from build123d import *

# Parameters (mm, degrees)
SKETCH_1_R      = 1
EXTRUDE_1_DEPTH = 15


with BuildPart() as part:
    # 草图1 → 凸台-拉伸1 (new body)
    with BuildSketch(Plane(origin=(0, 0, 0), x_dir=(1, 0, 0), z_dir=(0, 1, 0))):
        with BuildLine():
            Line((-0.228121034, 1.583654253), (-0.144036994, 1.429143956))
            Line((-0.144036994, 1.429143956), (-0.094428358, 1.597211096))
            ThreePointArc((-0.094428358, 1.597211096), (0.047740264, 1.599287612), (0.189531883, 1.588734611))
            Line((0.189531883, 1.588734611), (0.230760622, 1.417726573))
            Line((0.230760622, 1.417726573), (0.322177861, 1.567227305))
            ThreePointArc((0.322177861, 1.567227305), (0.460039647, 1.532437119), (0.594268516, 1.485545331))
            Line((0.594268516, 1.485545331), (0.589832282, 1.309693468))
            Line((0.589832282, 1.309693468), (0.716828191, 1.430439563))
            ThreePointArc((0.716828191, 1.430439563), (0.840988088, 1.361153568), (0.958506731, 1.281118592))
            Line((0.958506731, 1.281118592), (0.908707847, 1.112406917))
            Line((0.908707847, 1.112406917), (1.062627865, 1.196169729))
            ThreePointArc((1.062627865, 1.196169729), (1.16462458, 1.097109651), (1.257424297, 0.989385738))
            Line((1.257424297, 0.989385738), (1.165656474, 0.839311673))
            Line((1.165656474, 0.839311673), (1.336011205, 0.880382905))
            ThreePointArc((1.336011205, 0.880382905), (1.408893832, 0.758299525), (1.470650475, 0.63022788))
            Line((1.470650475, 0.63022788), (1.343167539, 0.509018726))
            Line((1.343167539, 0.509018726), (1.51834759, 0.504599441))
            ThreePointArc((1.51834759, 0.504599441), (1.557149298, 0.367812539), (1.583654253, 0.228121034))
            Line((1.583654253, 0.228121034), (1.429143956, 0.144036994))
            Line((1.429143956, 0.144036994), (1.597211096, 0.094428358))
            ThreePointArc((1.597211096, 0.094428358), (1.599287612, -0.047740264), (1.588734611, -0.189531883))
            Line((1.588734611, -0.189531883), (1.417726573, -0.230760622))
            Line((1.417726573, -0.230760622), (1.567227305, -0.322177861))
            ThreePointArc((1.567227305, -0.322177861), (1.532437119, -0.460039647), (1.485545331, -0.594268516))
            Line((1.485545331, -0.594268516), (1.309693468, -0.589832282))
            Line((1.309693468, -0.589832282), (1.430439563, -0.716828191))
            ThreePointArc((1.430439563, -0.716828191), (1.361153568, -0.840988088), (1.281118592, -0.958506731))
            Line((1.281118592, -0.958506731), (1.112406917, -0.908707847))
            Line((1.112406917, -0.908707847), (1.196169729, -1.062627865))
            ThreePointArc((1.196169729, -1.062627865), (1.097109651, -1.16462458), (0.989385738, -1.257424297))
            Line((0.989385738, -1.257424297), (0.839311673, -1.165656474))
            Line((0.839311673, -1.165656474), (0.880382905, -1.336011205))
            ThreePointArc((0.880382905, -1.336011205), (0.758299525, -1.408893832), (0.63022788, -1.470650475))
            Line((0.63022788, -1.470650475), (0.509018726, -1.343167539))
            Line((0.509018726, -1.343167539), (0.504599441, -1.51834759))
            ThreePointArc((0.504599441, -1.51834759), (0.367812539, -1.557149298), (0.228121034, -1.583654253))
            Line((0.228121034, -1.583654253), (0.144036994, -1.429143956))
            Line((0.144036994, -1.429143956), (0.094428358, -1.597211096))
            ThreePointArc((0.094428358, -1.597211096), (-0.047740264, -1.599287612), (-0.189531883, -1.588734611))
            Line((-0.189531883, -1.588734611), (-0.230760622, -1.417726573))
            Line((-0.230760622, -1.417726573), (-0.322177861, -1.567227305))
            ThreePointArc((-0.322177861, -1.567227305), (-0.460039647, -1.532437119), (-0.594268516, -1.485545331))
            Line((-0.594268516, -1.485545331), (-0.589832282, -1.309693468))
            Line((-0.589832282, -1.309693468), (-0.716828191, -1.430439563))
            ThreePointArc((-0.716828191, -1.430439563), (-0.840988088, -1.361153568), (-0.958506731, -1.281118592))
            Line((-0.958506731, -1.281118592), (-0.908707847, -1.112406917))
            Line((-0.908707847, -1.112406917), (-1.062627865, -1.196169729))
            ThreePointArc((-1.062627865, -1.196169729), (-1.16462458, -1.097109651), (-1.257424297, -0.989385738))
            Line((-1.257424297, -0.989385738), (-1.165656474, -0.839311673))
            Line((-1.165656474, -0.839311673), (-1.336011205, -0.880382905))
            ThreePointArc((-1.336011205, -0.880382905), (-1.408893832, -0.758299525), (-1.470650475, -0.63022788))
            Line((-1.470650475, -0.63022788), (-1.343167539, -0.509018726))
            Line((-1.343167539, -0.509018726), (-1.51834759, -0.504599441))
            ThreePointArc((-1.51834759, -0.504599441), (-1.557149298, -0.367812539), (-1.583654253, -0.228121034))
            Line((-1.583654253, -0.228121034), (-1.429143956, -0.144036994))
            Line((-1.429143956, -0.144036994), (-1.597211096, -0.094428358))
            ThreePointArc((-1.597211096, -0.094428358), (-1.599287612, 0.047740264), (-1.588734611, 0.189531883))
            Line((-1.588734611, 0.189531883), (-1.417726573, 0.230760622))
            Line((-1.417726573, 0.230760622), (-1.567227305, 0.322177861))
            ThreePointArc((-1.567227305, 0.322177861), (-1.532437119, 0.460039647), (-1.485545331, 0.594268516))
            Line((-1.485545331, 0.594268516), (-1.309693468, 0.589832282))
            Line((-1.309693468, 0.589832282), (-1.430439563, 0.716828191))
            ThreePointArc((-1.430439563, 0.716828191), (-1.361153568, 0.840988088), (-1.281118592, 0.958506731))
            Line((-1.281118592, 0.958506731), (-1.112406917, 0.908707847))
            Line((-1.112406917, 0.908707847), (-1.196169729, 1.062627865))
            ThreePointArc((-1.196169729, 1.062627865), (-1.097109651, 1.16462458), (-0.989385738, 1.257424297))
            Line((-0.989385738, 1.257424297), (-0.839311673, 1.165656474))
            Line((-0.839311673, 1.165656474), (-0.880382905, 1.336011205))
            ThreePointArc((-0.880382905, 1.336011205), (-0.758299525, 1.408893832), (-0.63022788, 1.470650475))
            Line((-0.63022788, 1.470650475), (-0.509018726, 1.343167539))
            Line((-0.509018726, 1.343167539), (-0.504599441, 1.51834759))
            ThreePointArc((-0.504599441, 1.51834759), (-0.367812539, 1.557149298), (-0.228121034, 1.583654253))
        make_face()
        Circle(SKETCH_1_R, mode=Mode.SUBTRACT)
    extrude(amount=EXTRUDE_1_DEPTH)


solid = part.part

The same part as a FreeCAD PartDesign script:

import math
import FreeCAD as App
import Part
import Sketcher

V = App.Vector

doc = App.newDocument("Part")
body = doc.addObject("PartDesign::Body", "Body")

sketch1 = doc.addObject("Sketcher::SketchObject", "Sketch")
body.addObject(sketch1)
sketch1.AttachmentSupport = (doc.XZ_Plane, [""])
sketch1.MapMode = "FlatFace"
sketch1.addGeometry([
    Part.LineSegment(V(-0.144037, -1.429144, 0), V(-0.228121, -1.583654, 0)),
    Part.ArcOfCircle(Part.Circle(V(0, 0, 0), V(0, 0, 1), 1.6), math.radians(-108.383433), math.radians(-98.196915)),
    Part.LineSegment(V(-0.504599, -1.518348, 0), V(-0.509019, -1.343168, 0)),
    Part.LineSegment(V(-0.509019, -1.343168, 0), V(-0.630228, -1.47065, 0)),
    Part.ArcOfCircle(Part.Circle(V(0, 0, 0), V(0, 0, 1), 1.6), math.radians(-123.383433), math.radians(-113.196915)),
    Part.LineSegment(V(-0.880383, -1.336011, 0), V(-0.839312, -1.165656, 0)),
    Part.LineSegment(V(-0.839312, -1.165656, 0), V(-0.989386, -1.257424, 0)),
    Part.ArcOfCircle(Part.Circle(V(0, 0, 0), V(0, 0, 1), 1.6), math.radians(-138.383432), math.radians(-128.196916)),
    Part.LineSegment(V(-1.19617, -1.062628, 0), V(-1.112407, -0.908708, 0)),
    Part.LineSegment(V(-1.112407, -0.908708, 0), V(-1.281119, -0.958507, 0)),
    Part.ArcOfCircle(Part.Circle(V(0, 0, 0), V(0, 0, 1), 1.6), math.radians(-153.383433), math.radians(-143.196915)),
    Part.LineSegment(V(-1.43044, -0.716828, 0), V(-1.309693, -0.589832, 0)),
    Part.LineSegment(V(-1.309693, -0.589832, 0), V(-1.485545, -0.594269, 0)),
    Part.ArcOfCircle(Part.Circle(V(0, 0, 0), V(0, 0, 1), 1.6), math.radians(-168.383433), math.radians(-158.196915)),
    Part.LineSegment(V(-1.567227, -0.322178, 0), V(-1.417727, -0.230761, 0)),
    Part.LineSegment(V(-1.417727, -0.230761, 0), V(-1.588735, -0.189532, 0)),
    Part.ArcOfCircle(Part.Circle(V(0, 0, 0), V(0, 0, 1), 1.6), math.radians(176.616568), math.radians(186.803085)),
    Part.LineSegment(V(-1.597211, 0.094428, 0), V(-1.429144, 0.144037, 0)),
    Part.LineSegment(V(-1.429144, 0.144037, 0), V(-1.583654, 0.228121, 0)),
    Part.ArcOfCircle(Part.Circle(V(0, 0, 0), V(0, 0, 1), 1.6), math.radians(161.616567), math.radians(171.803085)),
    Part.LineSegment(V(-1.518348, 0.504599, 0), V(-1.343168, 0.509019, 0)),
    Part.LineSegment(V(-1.343168, 0.509019, 0), V(-1.47065, 0.630228, 0)),
    Part.ArcOfCircle(Part.Circle(V(0, 0, 0), V(0, 0, 1), 1.6), math.radians(146.616567), math.radians(156.803085)),
    Part.LineSegment(V(-1.336011, 0.880383, 0), V(-1.165656, 0.839312, 0)),
    Part.LineSegment(V(-1.165656, 0.839312, 0), V(-1.257424, 0.989386, 0)),
    Part.ArcOfCircle(Part.Circle(V(0, 0, 0), V(0, 0, 1), 1.6), math.radians(131.616568), math.radians(141.803084)),
    Part.LineSegment(V(-1.062628, 1.19617, 0), V(-0.908708, 1.112407, 0)),
    Part.LineSegment(V(-0.908708, 1.112407, 0), V(-0.958507, 1.281119, 0)),
    Part.ArcOfCircle(Part.Circle(V(0, 0, 0), V(0, 0, 1), 1.6), math.radians(116.616567), math.radians(126.803085)),
    Part.LineSegment(V(-0.716828, 1.43044, 0), V(-0.589832, 1.309693, 0)),
    Part.LineSegment(V(-0.589832, 1.309693, 0), V(-0.594269, 1.485545, 0)),
    Part.ArcOfCircle(Part.Circle(V(0, 0, 0), V(0, 0, 1), 1.6), math.radians(101.616567), math.radians(111.803085)),
    Part.LineSegment(V(-0.322178, 1.567227, 0), V(-0.230761, 1.417727, 0)),
    Part.LineSegment(V(-0.230761, 1.417727, 0), V(-0.189532, 1.588735, 0)),
    Part.ArcOfCircle(Part.Circle(V(0, 0, 0), V(0, 0, 1), 1.6), math.radians(86.616568), math.radians(96.803085)),
    Part.LineSegment(V(0.094428, 1.597211, 0), V(0.144037, 1.429144, 0)),
    Part.LineSegment(V(0.144037, 1.429144, 0), V(0.228121, 1.583654, 0)),
    Part.ArcOfCircle(Part.Circle(V(0, 0, 0), V(0, 0, 1), 1.6), math.radians(71.616567), math.radians(81.803085)),
    Part.LineSegment(V(0.504599, 1.518348, 0), V(0.509019, 1.343168, 0)),
    Part.LineSegment(V(0.509019, 1.343168, 0), V(0.630228, 1.47065, 0)),
    Part.ArcOfCircle(Part.Circle(V(0, 0, 0), V(0, 0, 1), 1.6), math.radians(56.616567), math.radians(66.803085)),
    Part.LineSegment(V(0.880383, 1.336011, 0), V(0.839312, 1.165656, 0)),
    Part.LineSegment(V(0.839312, 1.165656, 0), V(0.989386, 1.257424, 0)),
    Part.ArcOfCircle(Part.Circle(V(0, 0, 0), V(0, 0, 1), 1.6), math.radians(41.616568), math.radians(51.803084)),
    Part.LineSegment(V(1.19617, 1.062628, 0), V(1.112407, 0.908708, 0)),
    Part.LineSegment(V(1.112407, 0.908708, 0), V(1.281119, 0.958507, 0)),
    Part.ArcOfCircle(Part.Circle(V(0, 0, 0), V(0, 0, 1), 1.6), math.radians(26.616567), math.radians(36.803085)),
    Part.LineSegment(V(1.43044, 0.716828, 0), V(1.309693, 0.589832, 0)),
    Part.LineSegment(V(1.309693, 0.589832, 0), V(1.485545, 0.594269, 0)),
    Part.ArcOfCircle(Part.Circle(V(0, 0, 0), V(0, 0, 1), 1.6), math.radians(11.616567), math.radians(21.803085)),
    Part.LineSegment(V(1.567227, 0.322178, 0), V(1.417727, 0.230761, 0)),
    Part.LineSegment(V(1.417727, 0.230761, 0), V(1.588735, 0.189532, 0)),
    Part.ArcOfCircle(Part.Circle(V(0, 0, 0), V(0, 0, 1), 1.6), math.radians(-3.383432), math.radians(6.803085)),
    Part.LineSegment(V(1.597211, -0.094428, 0), V(1.429144, -0.144037, 0)),
    Part.LineSegment(V(1.429144, -0.144037, 0), V(1.583654, -0.228121, 0)),
    Part.ArcOfCircle(Part.Circle(V(0, 0, 0), V(0, 0, 1), 1.6), math.radians(-18.383433), math.radians(-8.196915)),
    Part.LineSegment(V(1.518348, -0.504599, 0), V(1.343168, -0.509019, 0)),
    Part.LineSegment(V(1.343168, -0.509019, 0), V(1.47065, -0.630228, 0)),
    Part.ArcOfCircle(Part.Circle(V(0, 0, 0), V(0, 0, 1), 1.6), math.radians(-33.383433), math.radians(-23.196915)),
    Part.LineSegment(V(1.336011, -0.880383, 0), V(1.165656, -0.839312, 0)),
    Part.LineSegment(V(1.165656, -0.839312, 0), V(1.257424, -0.989386, 0)),
    Part.ArcOfCircle(Part.Circle(V(0, 0, 0), V(0, 0, 1), 1.6), math.radians(-48.383432), math.radians(-38.196916)),
    Part.LineSegment(V(1.062628, -1.19617, 0), V(0.908708, -1.112407, 0)),
    Part.LineSegment(V(0.908708, -1.112407, 0), V(0.958507, -1.281119, 0)),
    Part.ArcOfCircle(Part.Circle(V(0, 0, 0), V(0, 0, 1), 1.6), math.radians(-63.383433), math.radians(-53.196915)),
    Part.LineSegment(V(0.716828, -1.43044, 0), V(0.589832, -1.309693, 0)),
    Part.LineSegment(V(0.589832, -1.309693, 0), V(0.594269, -1.485545, 0)),
    Part.ArcOfCircle(Part.Circle(V(0, 0, 0), V(0, 0, 1), 1.6), math.radians(-78.383433), math.radians(-68.196915)),
    Part.LineSegment(V(0.322178, -1.567227, 0), V(0.230761, -1.417727, 0)),
    Part.LineSegment(V(0.230761, -1.417727, 0), V(0.189532, -1.588735, 0)),
    Part.ArcOfCircle(Part.Circle(V(0, 0, 0), V(0, 0, 1), 1.6), math.radians(-93.383432), math.radians(-83.196915)),
    Part.LineSegment(V(-0.094428, -1.597211, 0), V(-0.144037, -1.429144, 0)),
    Part.Circle(V(0, 0, 0), V(0, 0, 1), 1),
], False)
sketch1.addConstraint([
    Sketcher.Constraint("Coincident", 0, 2, 1, 2),
    Sketcher.Constraint("Coincident", 1, 1, 2, 1),
    Sketcher.Constraint("Coincident", 2, 2, 3, 1),
    Sketcher.Constraint("Coincident", 3, 2, 4, 2),
    Sketcher.Constraint("Coincident", 4, 1, 5, 1),
    Sketcher.Constraint("Coincident", 5, 2, 6, 1),
    Sketcher.Constraint("Coincident", 6, 2, 7, 2),
    Sketcher.Constraint("Coincident", 7, 1, 8, 1),
    Sketcher.Constraint("Coincident", 8, 2, 9, 1),
    Sketcher.Constraint("Coincident", 9, 2, 10, 2),
    Sketcher.Constraint("Coincident", 10, 1, 11, 1),
    Sketcher.Constraint("Coincident", 11, 2, 12, 1),
    Sketcher.Constraint("Coincident", 12, 2, 13, 2),
    Sketcher.Constraint("Coincident", 13, 1, 14, 1),
    Sketcher.Constraint("Coincident", 14, 2, 15, 1),
    Sketcher.Constraint("Coincident", 15, 2, 16, 2),
    Sketcher.Constraint("Coincident", 16, 1, 17, 1),
    Sketcher.Constraint("Coincident", 17, 2, 18, 1),
    Sketcher.Constraint("Coincident", 18, 2, 19, 2),
    Sketcher.Constraint("Coincident", 19, 1, 20, 1),
    Sketcher.Constraint("Coincident", 20, 2, 21, 1),
    Sketcher.Constraint("Coincident", 21, 2, 22, 2),
    Sketcher.Constraint("Coincident", 22, 1, 23, 1),
    Sketcher.Constraint("Coincident", 23, 2, 24, 1),
    Sketcher.Constraint("Coincident", 24, 2, 25, 2),
    Sketcher.Constraint("Coincident", 25, 1, 26, 1),
    Sketcher.Constraint("Coincident", 26, 2, 27, 1),
    Sketcher.Constraint("Coincident", 27, 2, 28, 2),
    Sketcher.Constraint("Coincident", 28, 1, 29, 1),
    Sketcher.Constraint("Coincident", 29, 2, 30, 1),
    Sketcher.Constraint("Coincident", 30, 2, 31, 2),
    Sketcher.Constraint("Coincident", 31, 1, 32, 1),
    Sketcher.Constraint("Coincident", 32, 2, 33, 1),
    Sketcher.Constraint("Coincident", 33, 2, 34, 2),
    Sketcher.Constraint("Coincident", 34, 1, 35, 1),
    Sketcher.Constraint("Coincident", 35, 2, 36, 1),
    Sketcher.Constraint("Coincident", 36, 2, 37, 2),
    Sketcher.Constraint("Coincident", 37, 1, 38, 1),
    Sketcher.Constraint("Coincident", 38, 2, 39, 1),
    Sketcher.Constraint("Coincident", 39, 2, 40, 2),
    Sketcher.Constraint("Coincident", 40, 1, 41, 1),
    Sketcher.Constraint("Coincident", 41, 2, 42, 1),
    Sketcher.Constraint("Coincident", 42, 2, 43, 2),
    Sketcher.Constraint("Coincident", 43, 1, 44, 1),
    Sketcher.Constraint("Coincident", 44, 2, 45, 1),
    Sketcher.Constraint("Coincident", 45, 2, 46, 2),
    Sketcher.Constraint("Coincident", 46, 1, 47, 1),
    Sketcher.Constraint("Coincident", 47, 2, 48, 1),
    Sketcher.Constraint("Coincident", 48, 2, 49, 2),
    Sketcher.Constraint("Coincident", 49, 1, 50, 1),
    Sketcher.Constraint("Coincident", 50, 2, 51, 1),
    Sketcher.Constraint("Coincident", 51, 2, 52, 2),
    Sketcher.Constraint("Coincident", 52, 1, 53, 1),
    Sketcher.Constraint("Coincident", 53, 2, 54, 1),
    Sketcher.Constraint("Coincident", 54, 2, 55, 2),
    Sketcher.Constraint("Coincident", 55, 1, 56, 1),
    Sketcher.Constraint("Coincident", 56, 2, 57, 1),
    Sketcher.Constraint("Coincident", 57, 2, 58, 2),
    Sketcher.Constraint("Coincident", 58, 1, 59, 1),
    Sketcher.Constraint("Coincident", 59, 2, 60, 1),
    Sketcher.Constraint("Coincident", 60, 2, 61, 2),
    Sketcher.Constraint("Coincident", 61, 1, 62, 1),
    Sketcher.Constraint("Coincident", 62, 2, 63, 1),
    Sketcher.Constraint("Coincident", 63, 2, 64, 2),
    Sketcher.Constraint("Coincident", 64, 1, 65, 1),
    Sketcher.Constraint("Coincident", 65, 2, 66, 1),
    Sketcher.Constraint("Coincident", 66, 2, 67, 2),
    Sketcher.Constraint("Coincident", 67, 1, 68, 1),
    Sketcher.Constraint("Coincident", 68, 2, 69, 1),
    Sketcher.Constraint("Coincident", 69, 2, 70, 2),
    Sketcher.Constraint("Coincident", 70, 1, 71, 1),
    Sketcher.Constraint("Coincident", 71, 2, 0, 1),
    Sketcher.Constraint("Coincident", 1, 3, -1, 1),
    Sketcher.Constraint("Coincident", 4, 3, -1, 1),
    Sketcher.Constraint("Coincident", 7, 3, -1, 1),
    Sketcher.Constraint("Coincident", 10, 3, -1, 1),
    Sketcher.Constraint("Coincident", 13, 3, -1, 1),
    Sketcher.Constraint("Coincident", 16, 3, -1, 1),
    Sketcher.Constraint("Coincident", 19, 3, -1, 1),
    Sketcher.Constraint("Coincident", 22, 3, -1, 1),
    Sketcher.Constraint("Coincident", 25, 3, -1, 1),
    Sketcher.Constraint("Coincident", 28, 3, -1, 1),
    Sketcher.Constraint("Coincident", 31, 3, -1, 1),
    Sketcher.Constraint("Coincident", 34, 3, -1, 1),
    Sketcher.Constraint("Coincident", 37, 3, -1, 1),
    Sketcher.Constraint("Coincident", 40, 3, -1, 1),
    Sketcher.Constraint("Coincident", 43, 3, -1, 1),
    Sketcher.Constraint("Coincident", 46, 3, -1, 1),
    Sketcher.Constraint("Coincident", 49, 3, -1, 1),
    Sketcher.Constraint("Coincident", 52, 3, -1, 1),
    Sketcher.Constraint("Coincident", 55, 3, -1, 1),
    Sketcher.Constraint("Coincident", 58, 3, -1, 1),
    Sketcher.Constraint("Coincident", 61, 3, -1, 1),
    Sketcher.Constraint("Coincident", 64, 3, -1, 1),
    Sketcher.Constraint("Coincident", 67, 3, -1, 1),
    Sketcher.Constraint("Coincident", 70, 3, -1, 1),
    Sketcher.Constraint("Coincident", 72, 3, -1, 1),
    Sketcher.Constraint("Equal", 1, 4),
    Sketcher.Constraint("Equal", 4, 7),
    Sketcher.Constraint("Equal", 7, 10),
    Sketcher.Constraint("Equal", 10, 13),
    Sketcher.Constraint("Equal", 13, 16),
    Sketcher.Constraint("Equal", 16, 19),
    Sketcher.Constraint("Equal", 19, 22),
    Sketcher.Constraint("Equal", 22, 25),
    Sketcher.Constraint("Equal", 25, 28),
    Sketcher.Constraint("Equal", 28, 31),
    Sketcher.Constraint("Equal", 31, 34),
    Sketcher.Constraint("Equal", 34, 37),
    Sketcher.Constraint("Equal", 37, 40),
    Sketcher.Constraint("Equal", 40, 43),
    Sketcher.Constraint("Equal", 43, 46),
    Sketcher.Constraint("Equal", 46, 49),
    Sketcher.Constraint("Equal", 49, 52),
    Sketcher.Constraint("Equal", 52, 55),
    Sketcher.Constraint("Equal", 55, 58),
    Sketcher.Constraint("Equal", 58, 61),
    Sketcher.Constraint("Equal", 61, 64),
    Sketcher.Constraint("Equal", 64, 67),
    Sketcher.Constraint("Equal", 67, 70),
    Sketcher.Constraint("Symmetric", 2, 2, 38, 2, -1, 1),
    Sketcher.Constraint("Symmetric", 5, 2, 41, 2, -1, 1),
    Sketcher.Constraint("Symmetric", 8, 2, 44, 2, -1, 1),
    Sketcher.Constraint("Symmetric", 11, 2, 47, 2, -1, 1),
    Sketcher.Constraint("Symmetric", 14, 2, 50, 2, -1, 1),
    Sketcher.Constraint("Symmetric", 17, 2, 53, 2, -1, 1),
    Sketcher.Constraint("Symmetric", 20, 2, 56, 2, -1, 1),
    Sketcher.Constraint("Symmetric", 23, 2, 59, 2, -1, 1),
    Sketcher.Constraint("Symmetric", 26, 2, 62, 2, -1, 1),
    Sketcher.Constraint("Symmetric", 29, 2, 65, 2, -1, 1),
    Sketcher.Constraint("Symmetric", 32, 2, 68, 2, -1, 1),
    Sketcher.Constraint("Symmetric", 35, 2, 71, 2, -1, 1),
    Sketcher.Constraint("Parallel", 0, 8),
    Sketcher.Constraint("Parallel", 3, 11),
    Sketcher.Constraint("Perpendicular", 2, 12),
    Sketcher.Constraint("Parallel", 6, 14),
    Sketcher.Constraint("Perpendicular", 5, 15),
    Sketcher.Constraint("Parallel", 9, 17),
    Sketcher.Constraint("Perpendicular", 8, 18),
    Sketcher.Constraint("Parallel", 12, 20),
    Sketcher.Constraint("Perpendicular", 11, 21),
    Sketcher.Constraint("Parallel", 15, 23),
    Sketcher.Constraint("Perpendicular", 14, 24),
    Sketcher.Constraint("Parallel", 18, 26),
    Sketcher.Constraint("Perpendicular", 17, 27),
    Sketcher.Constraint("Parallel", 21, 29),
    Sketcher.Constraint("Perpendicular", 20, 30),
    Sketcher.Constraint("Parallel", 24, 32),
    Sketcher.Constraint("Perpendicular", 23, 33),
    Sketcher.Constraint("Parallel", 27, 35),
    Sketcher.Constraint("Perpendicular", 26, 36),
    Sketcher.Constraint("Parallel", 30, 38),
    Sketcher.Constraint("Perpendicular", 29, 39),
    Sketcher.Constraint("Parallel", 33, 41),
    Sketcher.Constraint("Perpendicular", 32, 42),
    Sketcher.Constraint("Parallel", 36, 44),
    Sketcher.Constraint("Perpendicular", 35, 45),
    Sketcher.Constraint("Parallel", 39, 47),
    Sketcher.Constraint("Perpendicular", 38, 48),
    Sketcher.Constraint("Parallel", 42, 50),
    Sketcher.Constraint("Perpendicular", 41, 51),
    Sketcher.Constraint("Parallel", 45, 53),
    Sketcher.Constraint("Perpendicular", 44, 54),
    Sketcher.Constraint("Parallel", 48, 56),
    Sketcher.Constraint("Perpendicular", 47, 57),
    Sketcher.Constraint("Parallel", 51, 59),
    Sketcher.Constraint("Perpendicular", 50, 60),
    Sketcher.Constraint("Parallel", 54, 62),
    Sketcher.Constraint("Perpendicular", 53, 63),
    Sketcher.Constraint("Parallel", 57, 65),
    Sketcher.Constraint("Perpendicular", 56, 66),
    Sketcher.Constraint("Parallel", 60, 68),
    Sketcher.Constraint("Perpendicular", 59, 69),
    Sketcher.Constraint("Parallel", 63, 71),
    Sketcher.Constraint("Equal", 0, 3),
    Sketcher.Constraint("Equal", 2, 5),
    Sketcher.Constraint("Equal", 3, 6),
    Sketcher.Constraint("Equal", 5, 8),
    Sketcher.Constraint("Equal", 6, 9),
    Sketcher.Constraint("Equal", 8, 11),
    Sketcher.Constraint("Equal", 9, 12),
    Sketcher.Constraint("Equal", 11, 14),
    Sketcher.Constraint("Equal", 12, 15),
    Sketcher.Constraint("Equal", 14, 17),
    Sketcher.Constraint("Equal", 15, 18),
    Sketcher.Constraint("Equal", 17, 20),
    Sketcher.Constraint("Equal", 18, 21),
    Sketcher.Constraint("Equal", 20, 23),
    Sketcher.Constraint("Equal", 21, 24),
    Sketcher.Constraint("Equal", 23, 26),
    Sketcher.Constraint("Equal", 24, 27),
    Sketcher.Constraint("Equal", 26, 29),
    Sketcher.Constraint("Equal", 27, 30),
    Sketcher.Constraint("Equal", 29, 32),
    Sketcher.Constraint("Equal", 30, 33),
    Sketcher.Constraint("Equal", 32, 35),
    Sketcher.Constraint("Diameter", 72, 2.0),
    Sketcher.Constraint("Radius", 1, 1.6),
    Sketcher.Constraint("DistanceX", 1, 1, -1, 1, 0.504599),
    Sketcher.Constraint("DistanceX", 0, 2, -1, 1, 0.228121),
    Sketcher.Constraint("DistanceX", 2, 2, -1, 1, 0.509019),
    Sketcher.Constraint("DistanceY", 3, 2, -1, 1, 1.47065),
    Sketcher.Constraint("DistanceY", 4, 1, -1, 1, 1.336011),
    Sketcher.Constraint("DistanceX", 5, 2, -1, 1, 0.839312),
    Sketcher.Constraint("DistanceX", 7, 1, -1, 1, 1.19617),
    Sketcher.Constraint("DistanceX", 9, 2, -1, 1, 1.281119),
])
pad1 = doc.addObject("PartDesign::Pad", "Pad")
body.addObject(pad1)
pad1.Profile = sketch1
pad1.Length = 15
pad1.Reversed = True

doc.recompute()
